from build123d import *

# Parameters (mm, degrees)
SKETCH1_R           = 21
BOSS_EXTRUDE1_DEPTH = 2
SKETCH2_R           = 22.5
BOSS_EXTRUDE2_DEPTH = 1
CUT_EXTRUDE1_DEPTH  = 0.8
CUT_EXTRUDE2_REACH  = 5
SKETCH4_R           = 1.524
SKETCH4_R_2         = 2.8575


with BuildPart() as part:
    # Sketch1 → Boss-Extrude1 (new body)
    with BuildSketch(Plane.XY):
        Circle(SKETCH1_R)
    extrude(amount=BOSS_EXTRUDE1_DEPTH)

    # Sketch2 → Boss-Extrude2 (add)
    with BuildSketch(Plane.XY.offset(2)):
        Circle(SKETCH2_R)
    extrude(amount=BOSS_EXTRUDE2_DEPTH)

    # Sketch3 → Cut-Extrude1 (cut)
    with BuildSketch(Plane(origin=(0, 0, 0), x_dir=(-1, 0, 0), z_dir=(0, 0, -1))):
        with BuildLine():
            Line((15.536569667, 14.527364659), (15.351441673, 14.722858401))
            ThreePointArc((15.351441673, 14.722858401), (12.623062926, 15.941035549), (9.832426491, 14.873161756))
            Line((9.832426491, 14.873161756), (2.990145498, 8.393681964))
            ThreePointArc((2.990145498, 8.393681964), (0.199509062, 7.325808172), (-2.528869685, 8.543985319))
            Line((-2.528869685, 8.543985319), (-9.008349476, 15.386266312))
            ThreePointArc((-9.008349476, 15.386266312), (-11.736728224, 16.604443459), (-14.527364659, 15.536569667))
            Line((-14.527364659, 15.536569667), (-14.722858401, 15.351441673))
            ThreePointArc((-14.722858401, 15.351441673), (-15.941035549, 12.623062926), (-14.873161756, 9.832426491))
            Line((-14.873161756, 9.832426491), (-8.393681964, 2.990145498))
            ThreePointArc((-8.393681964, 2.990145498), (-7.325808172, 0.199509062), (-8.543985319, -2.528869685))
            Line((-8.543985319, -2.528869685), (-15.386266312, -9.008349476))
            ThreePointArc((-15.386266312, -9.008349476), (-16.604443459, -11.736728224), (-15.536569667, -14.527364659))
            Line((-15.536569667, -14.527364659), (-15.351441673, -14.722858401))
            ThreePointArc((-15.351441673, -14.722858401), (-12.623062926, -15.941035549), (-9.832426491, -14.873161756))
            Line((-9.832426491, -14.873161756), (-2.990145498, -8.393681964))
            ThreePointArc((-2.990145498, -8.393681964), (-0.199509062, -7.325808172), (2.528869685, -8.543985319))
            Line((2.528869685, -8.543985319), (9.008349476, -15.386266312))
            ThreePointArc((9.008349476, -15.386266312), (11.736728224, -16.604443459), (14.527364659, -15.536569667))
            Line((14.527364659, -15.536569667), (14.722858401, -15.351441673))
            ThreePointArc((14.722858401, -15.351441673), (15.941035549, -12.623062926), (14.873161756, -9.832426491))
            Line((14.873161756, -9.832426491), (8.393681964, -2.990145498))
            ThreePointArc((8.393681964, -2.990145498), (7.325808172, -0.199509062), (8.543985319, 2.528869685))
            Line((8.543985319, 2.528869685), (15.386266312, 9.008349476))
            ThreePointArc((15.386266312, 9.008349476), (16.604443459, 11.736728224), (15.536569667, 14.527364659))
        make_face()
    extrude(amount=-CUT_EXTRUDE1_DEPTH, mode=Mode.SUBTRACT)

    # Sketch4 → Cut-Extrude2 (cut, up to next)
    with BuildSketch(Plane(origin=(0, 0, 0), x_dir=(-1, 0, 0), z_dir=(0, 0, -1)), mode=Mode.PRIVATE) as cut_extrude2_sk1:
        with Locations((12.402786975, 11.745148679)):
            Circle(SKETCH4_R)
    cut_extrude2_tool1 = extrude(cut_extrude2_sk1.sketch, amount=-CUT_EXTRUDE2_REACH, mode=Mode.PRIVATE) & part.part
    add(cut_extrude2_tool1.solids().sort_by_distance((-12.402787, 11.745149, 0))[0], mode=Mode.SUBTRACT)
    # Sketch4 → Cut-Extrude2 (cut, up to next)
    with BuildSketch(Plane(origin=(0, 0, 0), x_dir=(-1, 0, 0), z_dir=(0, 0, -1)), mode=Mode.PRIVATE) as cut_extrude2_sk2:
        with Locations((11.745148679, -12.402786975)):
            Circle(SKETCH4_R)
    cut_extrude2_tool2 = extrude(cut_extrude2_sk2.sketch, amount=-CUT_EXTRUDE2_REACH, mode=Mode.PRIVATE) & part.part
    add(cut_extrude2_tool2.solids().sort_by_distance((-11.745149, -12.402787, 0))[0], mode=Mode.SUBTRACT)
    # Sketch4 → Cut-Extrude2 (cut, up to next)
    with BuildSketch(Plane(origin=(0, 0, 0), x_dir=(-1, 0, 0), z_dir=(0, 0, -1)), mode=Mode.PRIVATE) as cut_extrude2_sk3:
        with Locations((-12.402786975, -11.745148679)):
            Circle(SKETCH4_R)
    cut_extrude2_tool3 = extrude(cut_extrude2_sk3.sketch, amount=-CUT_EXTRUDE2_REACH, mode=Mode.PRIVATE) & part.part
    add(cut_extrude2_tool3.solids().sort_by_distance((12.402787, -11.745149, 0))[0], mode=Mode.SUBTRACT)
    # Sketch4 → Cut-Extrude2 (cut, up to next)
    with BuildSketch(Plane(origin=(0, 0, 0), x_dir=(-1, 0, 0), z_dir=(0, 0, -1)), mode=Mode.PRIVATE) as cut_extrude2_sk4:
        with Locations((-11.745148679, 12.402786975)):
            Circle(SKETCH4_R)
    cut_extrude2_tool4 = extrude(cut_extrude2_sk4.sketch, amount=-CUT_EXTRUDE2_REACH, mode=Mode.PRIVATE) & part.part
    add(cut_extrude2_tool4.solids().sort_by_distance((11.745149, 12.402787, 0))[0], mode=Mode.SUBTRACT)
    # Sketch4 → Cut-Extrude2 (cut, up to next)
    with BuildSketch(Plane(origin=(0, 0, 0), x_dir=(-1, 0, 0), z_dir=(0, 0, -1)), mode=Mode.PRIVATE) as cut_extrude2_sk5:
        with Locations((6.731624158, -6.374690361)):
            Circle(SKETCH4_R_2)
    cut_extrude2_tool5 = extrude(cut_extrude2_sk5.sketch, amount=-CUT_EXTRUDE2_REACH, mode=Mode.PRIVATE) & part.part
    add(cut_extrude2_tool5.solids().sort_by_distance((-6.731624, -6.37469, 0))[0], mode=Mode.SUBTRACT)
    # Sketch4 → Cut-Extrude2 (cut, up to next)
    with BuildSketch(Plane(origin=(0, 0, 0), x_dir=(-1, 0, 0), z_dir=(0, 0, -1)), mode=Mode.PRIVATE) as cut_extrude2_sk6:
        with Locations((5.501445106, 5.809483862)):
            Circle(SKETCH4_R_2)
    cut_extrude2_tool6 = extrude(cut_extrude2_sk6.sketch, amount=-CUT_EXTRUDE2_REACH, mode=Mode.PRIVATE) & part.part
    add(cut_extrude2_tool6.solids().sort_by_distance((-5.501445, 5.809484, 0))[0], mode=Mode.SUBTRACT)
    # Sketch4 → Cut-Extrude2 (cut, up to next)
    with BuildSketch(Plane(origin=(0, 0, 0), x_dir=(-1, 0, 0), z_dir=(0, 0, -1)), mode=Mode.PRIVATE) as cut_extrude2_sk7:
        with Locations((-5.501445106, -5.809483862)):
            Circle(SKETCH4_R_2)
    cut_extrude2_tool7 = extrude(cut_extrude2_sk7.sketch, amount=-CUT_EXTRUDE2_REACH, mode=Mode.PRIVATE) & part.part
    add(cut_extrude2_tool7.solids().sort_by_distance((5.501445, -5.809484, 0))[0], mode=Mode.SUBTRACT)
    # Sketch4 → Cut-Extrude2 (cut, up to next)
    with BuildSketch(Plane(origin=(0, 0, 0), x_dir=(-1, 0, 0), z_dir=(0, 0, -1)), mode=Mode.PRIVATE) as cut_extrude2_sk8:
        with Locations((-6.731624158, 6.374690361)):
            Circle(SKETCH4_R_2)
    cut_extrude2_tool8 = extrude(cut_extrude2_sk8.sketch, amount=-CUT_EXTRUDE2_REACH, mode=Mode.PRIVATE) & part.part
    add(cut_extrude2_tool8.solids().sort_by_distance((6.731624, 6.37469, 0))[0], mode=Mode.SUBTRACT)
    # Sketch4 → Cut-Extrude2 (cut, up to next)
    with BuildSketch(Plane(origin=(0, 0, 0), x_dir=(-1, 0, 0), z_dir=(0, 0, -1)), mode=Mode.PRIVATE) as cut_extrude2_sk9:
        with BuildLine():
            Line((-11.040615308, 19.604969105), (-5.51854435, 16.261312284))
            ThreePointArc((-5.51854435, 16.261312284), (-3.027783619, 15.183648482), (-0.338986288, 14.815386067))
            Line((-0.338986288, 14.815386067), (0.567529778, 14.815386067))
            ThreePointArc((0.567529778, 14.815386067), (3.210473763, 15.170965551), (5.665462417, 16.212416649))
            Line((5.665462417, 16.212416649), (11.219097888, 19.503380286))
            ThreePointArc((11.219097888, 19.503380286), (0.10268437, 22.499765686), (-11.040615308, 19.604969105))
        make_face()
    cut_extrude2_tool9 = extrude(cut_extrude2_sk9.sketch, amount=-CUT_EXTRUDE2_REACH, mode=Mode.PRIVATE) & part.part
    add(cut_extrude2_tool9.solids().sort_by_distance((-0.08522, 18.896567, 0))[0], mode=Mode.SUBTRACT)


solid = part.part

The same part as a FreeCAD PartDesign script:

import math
import FreeCAD as App
import Part
import Sketcher
Q = App.Units.Quantity

doc = App.newDocument("Part")
body = doc.addObject("PartDesign::Body", "Body")

sketch1 = body.newObject("Sketcher::SketchObject", "Sketch")
sketch1.AttachmentSupport = (doc.getObject("XY_Plane"), [""])
sketch1.MapMode = "FlatFace"
sketch1.addGeometry(Part.Circle(App.Vector(0, 0, 0), App.Vector(0, 0, 1), 21), False)
sketch1.addConstraint([
    Sketcher.Constraint("Coincident", 0, 3, -1, 1),
    Sketcher.Constraint("Diameter", 0, 42.0),
])
pad1 = body.newObject("PartDesign::Pad", "Pad")
pad1.Profile = sketch1
pad1.Length = 2

sketch2 = body.newObject("Sketcher::SketchObject", "Sketch001")
sketch2.AttachmentSupport = (doc.getObject("XY_Plane"), [""])
sketch2.MapMode = "FlatFace"
sketch2.AttachmentOffset = App.Placement(App.Vector(0, 0, 2), App.Rotation())
sketch2.addGeometry(Part.Circle(App.Vector(0, 0, 0), App.Vector(0, 0, 1), 22), False)
sketch2.addConstraint([
    Sketcher.Constraint("Coincident", 0, 3, -1, 1),
    Sketcher.Constraint("Diameter", 0, 45.0),
])
pad2 = body.newObject("PartDesign::Pad", "Pad001")
pad2.Profile = sketch2
pad2.Length = 1

sketch3 = body.newObject("Sketcher::SketchObject", "Sketch002")
sketch3.AttachmentSupport = (doc.getObject("XY_Plane"), [""])
sketch3.MapMode = "FlatFace"
sketch3.addGeometry([
    Part.LineSegment(App.Vector(-15.54, 14.53, 0), App.Vector(-15.35, 14.72, 0)),
    Part.ArcOfCircle(Part.Circle(App.Vector(-12.52, 12.04, 0), App.Vector(0, 0, 1), 3.9), math.radians(47), math.radians(137)),
    Part.LineSegment(App.Vector(-9.83, 14.87, 0), App.Vector(-2.99, 8.39, 0)),
    Part.ArcOfCircle(Part.Circle(App.Vector(-0.31, 11.23, 0), App.Vector(0, 0, 1), 3.9), math.radians(-133), math.radians(-43)),
    Part.LineSegment(App.Vector(2.53, 8.54, 0), App.Vector(9.01, 15.39, 0)),
    Part.ArcOfCircle(Part.Circle(App.Vector(11.84, 12.7, 0), App.Vector(0, 0, 1), 3.9), math.radians(47), math.radians(137)),
    Part.LineSegment(App.Vector(14.53, 15.54, 0), App.Vector(14.72, 15.35, 0)),
    Part.ArcOfCircle(Part.Circle(App.Vector(12.04, 12.52, 0), App.Vector(0, 0, 1), 3.9), math.radians(-43), math.radians(47)),
    Part.LineSegment(App.Vector(14.87, 9.83, 0), App.Vector(8.39, 2.99, 0)),
    Part.ArcOfCircle(Part.Circle(App.Vector(11.23, 0.31, 0), App.Vector(0, 0, 1), 3.9), math.radians(137), math.radians(227)),
    Part.LineSegment(App.Vector(8.54, -2.53, 0), App.Vector(15.39, -9.01, 0)),
    Part.ArcOfCircle(Part.Circle(App.Vector(12.7, -11.84, 0), App.Vector(0, 0, 1), 3.9), math.radians(-43), math.radians(47)),
    Part.LineSegment(App.Vector(15.54, -14.53, 0), App.Vector(15.35, -14.72, 0)),
    Part.ArcOfCircle(Part.Circle(App.Vector(12.52, -12.04, 0), App.Vector(0, 0, 1), 3.9), math.radians(-133), math.radians(-43)),
    Part.LineSegment(App.Vector(9.83, -14.87, 0), App.Vector(2.99, -8.39, 0)),
    Part.ArcOfCircle(Part.Circle(App.Vector(0.31, -11.23, 0), App.Vector(0, 0, 1), 3.9), math.radians(47), math.radians(137)),
    Part.LineSegment(App.Vector(-2.53, -8.54, 0), App.Vector(-9.01, -15.39, 0)),
    Part.ArcOfCircle(Part.Circle(App.Vector(-11.84, -12.7, 0), App.Vector(0, 0, 1), 3.9), math.radians(-133), math.radians(-43)),
    Part.LineSegment(App.Vector(-14.53, -15.54, 0), App.Vector(-14.72, -15.35, 0)),
    Part.ArcOfCircle(Part.Circle(App.Vector(-12.04, -12.52, 0), App.Vector(0, 0, 1), 3.9), math.radians(137), math.radians(227)),
    Part.LineSegment(App.Vector(-14.87, -9.83, 0), App.Vector(-8.39, -2.99, 0)),
    Part.ArcOfCircle(Part.Circle(App.Vector(-11.23, -0.31, 0), App.Vector(0, 0, 1), 3.9), math.radians(-43), math.radians(47)),
    Part.LineSegment(App.Vector(-8.54, 2.53, 0), App.Vector(-15.39, 9.01, 0)),
    Part.ArcOfCircle(Part.Circle(App.Vector(-12.7, 11.84, 0), App.Vector(0, 0, 1), 3.9), math.radians(137), math.radians(227)),
], False)
sketch3.addConstraint([
    Sketcher.Constraint("Tangent", 0, 2, 1, 2),
    Sketcher.Constraint("Tangent", 1, 1, 2, 1),
    Sketcher.Constraint("Tangent", 2, 2, 3, 1),
    Sketcher.Constraint("Tangent", 3, 2, 4, 1),
    Sketcher.Constraint("Tangent", 4, 2, 5, 2),
    Sketcher.Constraint("Tangent", 5, 1, 6, 1),
    Sketcher.Constraint("Tangent", 6, 2, 7, 2),
    Sketcher.Constraint("Tangent", 7, 1, 8, 1),
    Sketcher.Constraint("Tangent", 8, 2, 9, 1),
    Sketcher.Constraint("Tangent", 9, 2, 10, 1),
    Sketcher.Constraint("Tangent", 10, 2, 11, 2),
    Sketcher.Constraint("Tangent", 11, 1, 12, 1),
    Sketcher.Constraint("Tangent", 12, 2, 13, 2),
    Sketcher.Constraint("Tangent", 13, 1, 14, 1),
    Sketcher.Constraint("Tangent", 14, 2, 15, 1),
    Sketcher.Constraint("Tangent", 15, 2, 16, 1),
    Sketcher.Constraint("Tangent", 16, 2, 17, 2),
    Sketcher.Constraint("Tangent", 17, 1, 18, 1),
    Sketcher.Constraint("Tangent", 18, 2, 19, 2),
    Sketcher.Constraint("Tangent", 19, 1, 20, 1),
    Sketcher.Constraint("Tangent", 20, 2, 21, 1),
    Sketcher.Constraint("Tangent", 21, 2, 22, 1),
    Sketcher.Constraint("Tangent", 22, 2, 23, 2),
    Sketcher.Constraint("Tangent", 23, 1, 0, 1),
    Sketcher.Constraint("Equal", 1, 3),
    Sketcher.Constraint("Equal", 3, 5),
    Sketcher.Constraint("Equal", 5, 7),
    Sketcher.Constraint("Equal", 7, 9),
    Sketcher.Constraint("Equal", 9, 11),
    Sketcher.Constraint("Equal", 11, 13),
    Sketcher.Constraint("Equal", 13, 15),
    Sketcher.Constraint("Equal", 15, 17),
    Sketcher.Constraint("Equal", 17, 19),
    Sketcher.Constraint("Equal", 19, 21),
    Sketcher.Constraint("Equal", 21, 23),
    Sketcher.Constraint("Symmetric", 1, 3, 13, 3, -1, 1),
    Sketcher.Constraint("Symmetric", 3, 3, 15, 3, -1, 1),
    Sketcher.Constraint("Symmetric", 5, 3, 17, 3, -1, 1),
    Sketcher.Constraint("Symmetric", 7, 3, 19, 3, -1, 1),
    Sketcher.Constraint("Symmetric", 9, 3, 21, 3, -1, 1),
    Sketcher.Constraint("Symmetric", 11, 3, 23, 3, -1, 1),
    Sketcher.Constraint("Perpendicular", 0, 2),
    Sketcher.Constraint("Perpendicular", 2, 4),
    Sketcher.Constraint("Perpendicular", 4, 6),
    Sketcher.Constraint("Perpendicular", 6, 8),
    Sketcher.Constraint("Perpendicular", 8, 10),
    Sketcher.Constraint("Equal", 2, 4),
    Sketcher.Constraint("Equal", 0, 6),
    Sketcher.Constraint("Equal", 4, 8),
    Sketcher.Constraint("Equal", 8, 10),
    Sketcher.Constraint("Angle", 2, Q("-43.440008 deg")),
    Sketcher.Constraint("Radius", 1, 3.90398),
    Sketcher.Constraint("Distance", 2, 9.4234),
    Sketcher.Constraint("DistanceX", 5, 3, 11, 3, 0.858902),
])
pocket1 = body.newObject("PartDesign::Pocket", "Pocket")
pocket1.Profile = sketch3
pocket1.Length = 0.8
pocket1.Reversed = True

sketch4 = body.newObject("Sketcher::SketchObject", "Sketch003")
sketch4.AttachmentSupport = (doc.getObject("XY_Plane"), [""])
sketch4.MapMode = "FlatFace"
sketch4.addGeometry(Part.Circle(App.Vector(-12.4, 11.7, 0), App.Vector(0, 0, 1), 1.5), False)
sketch4.addConstraint([
    Sketcher.Constraint("Diameter", 0, 3.048),
    Sketcher.Constraint("DistanceY", -1, 1, 0, 3, 11.745149),
    Sketcher.Constraint("DistanceX", 0, 3, -1, 1, 12.402787),
])
pocket2 = body.newObject("PartDesign::Pocket", "Pocket001")
pocket2.Profile = sketch4
pocket2.Length = 3
pocket2.Reversed = True

sketch5 = body.newObject("Sketcher::SketchObject", "Sketch004")
sketch5.AttachmentSupport = (doc.getObject("XY_Plane"), [""])
sketch5.MapMode = "FlatFace"
sketch5.addGeometry(Part.Circle(App.Vector(-11.7, -12.4, 0), App.Vector(0, 0, 1), 1.5), False)
sketch5.addConstraint([
    Sketcher.Constraint("Diameter", 0, 3.048),
    Sketcher.Constraint("DistanceX", 0, 3, -1, 1, 11.745149),
    Sketcher.Constraint("DistanceY", 0, 3, -1, 1, 12.402787),
])
pocket3 = body.newObject("PartDesign::Pocket", "Pocket002")
pocket3.Profile = sketch5
pocket3.Length = 3
pocket3.Reversed = True

sketch6 = body.newObject("Sketcher::SketchObject", "Sketch005")
sketch6.AttachmentSupport = (doc.getObject("XY_Plane"), [""])
sketch6.MapMode = "FlatFace"
sketch6.addGeometry(Part.Circle(App.Vector(12.4, -11.7, 0), App.Vector(0, 0, 1), 1.5), False)
sketch6.addConstraint([
    Sketcher.Constraint("Diameter", 0, 3.048),
    Sketcher.Constraint("DistanceY", 0, 3, -1, 1, 11.745149),
    Sketcher.Constraint("DistanceX", -1, 1, 0, 3, 12.402787),
])
pocket4 = body.newObject("PartDesign::Pocket", "Pocket003")
pocket4.Profile = sketch6
pocket4.Length = 3
pocket4.Reversed = True

sketch7 = body.newObject("Sketcher::SketchObject", "Sketch006")
sketch7.AttachmentSupport = (doc.getObject("XY_Plane"), [""])
sketch7.MapMode = "FlatFace"
sketch7.addGeometry(Part.Circle(App.Vector(11.7, 12.4, 0), App.Vector(0, 0, 1), 1.5), False)
sketch7.addConstraint([
    Sketcher.Constraint("Diameter", 0, 3.048),
    Sketcher.Constraint("DistanceX", -1, 1, 0, 3, 11.745149),
    Sketcher.Constraint("DistanceY", -1, 1, 0, 3, 12.402787),
])
pocket5 = body.newObject("PartDesign::Pocket", "Pocket004")
pocket5.Profile = sketch7
pocket5.Length = 3
pocket5.Reversed = True

sketch8 = body.newObject("Sketcher::SketchObject", "Sketch007")
sketch8.AttachmentSupport = (doc.getObject("XY_Plane"), [""])
sketch8.MapMode = "FlatFace"
sketch8.addGeometry(Part.Circle(App.Vector(-6.7, -6.4, 0), App.Vector(0, 0, 1), 2.9), False)
sketch8.addConstraint([
    Sketcher.Constraint("Diameter", 0, 5.715),
    Sketcher.Constraint("DistanceY", 0, 3, -1, 1, 6.37469),
    Sketcher.Constraint("DistanceX", 0, 3, -1, 1, 6.731624),
])
pocket6 = body.newObject("PartDesign::Pocket", "Pocket005")
pocket6.Profile = sketch8
pocket6.Length = 3
pocket6.Reversed = True

sketch9 = body.newObject("Sketcher::SketchObject", "Sketch008")
sketch9.AttachmentSupport = (doc.getObject("XY_Plane"), [""])
sketch9.MapMode = "FlatFace"
sketch9.addGeometry(Part.Circle(App.Vector(-5.5, 5.8, 0), App.Vector(0, 0, 1), 2.9), False)
sketch9.addConstraint([
    Sketcher.Constraint("Diameter", 0, 5.715),
    Sketcher.Constraint("DistanceX", 0, 3, -1, 1, 5.501445),
    Sketcher.Constraint("DistanceY", -1, 1, 0, 3, 5.809484),
])
pocket7 = body.newObject("PartDesign::Pocket", "Pocket006")
pocket7.Profile = sketch9
pocket7.Length = 3
pocket7.Reversed = True

sketch10 = body.newObject("Sketcher::SketchObject", "Sketch009")
sketch10.AttachmentSupport = (doc.getObject("XY_Plane"), [""])
sketch10.MapMode = "FlatFace"
sketch10.addGeometry(Part.Circle(App.Vector(5.5, -5.8, 0), App.Vector(0, 0, 1), 2.9), False)
sketch10.addConstraint([
    Sketcher.Constraint("Diameter", 0, 5.715),
    Sketcher.Constraint("DistanceX", -1, 1, 0, 3, 5.501445),
    Sketcher.Constraint("DistanceY", 0, 3, -1, 1, 5.809484),
])
pocket8 = body.newObject("PartDesign::Pocket", "Pocket007")
pocket8.Profile = sketch10
pocket8.Length = 3
pocket8.Reversed = True

sketch11 = body.newObject("Sketcher::SketchObject", "Sketch010")
sketch11.AttachmentSupport = (doc.getObject("XY_Plane"), [""])
sketch11.MapMode = "FlatFace"
sketch11.addGeometry(Part.Circle(App.Vector(6.7, 6.4, 0), App.Vector(0, 0, 1), 2.9), False)
sketch11.addConstraint([
    Sketcher.Constraint("Diameter", 0, 5.715),
    Sketcher.Constraint("DistanceY", -1, 1, 0, 3, 6.37469),
    Sketcher.Constraint("DistanceX", -1, 1, 0, 3, 6.731624),
])
pocket9 = body.newObject("PartDesign::Pocket", "Pocket008")
pocket9.Profile = sketch11
pocket9.Length = 3
pocket9.Reversed = True

sketch12 = body.newObject("Sketcher::SketchObject", "Sketch011")
sketch12.AttachmentSupport = (doc.getObject("XY_Plane"), [""])
sketch12.MapMode = "FlatFace"
sketch12.addGeometry([
    Part.LineSegment(App.Vector(11, 19.6, 0), App.Vector(5.5, 16.3, 0)),
    Part.ArcOfCircle(Part.Circle(App.Vector(0.3, 24.8, 0), App.Vector(0, 0, 1), 10), math.radians(-90), math.radians(-59)),
    Part.LineSegment(App.Vector(0.3, 14.8, 0), App.Vector(-0.6, 14.8, 0)),
    Part.ArcOfCircle(Part.Circle(App.Vector(-0.6, 24.8, 0), App.Vector(0, 0, 1), 10), math.radians(-121), math.radians(-90)),
    Part.LineSegment(App.Vector(-5.7, 16.2, 0), App.Vector(-11.2, 19.5, 0)),
    Part.ArcOfCircle(Part.Circle(App.Vector(0, 0, 0), App.Vector(0, 0, 1), 22.5), math.radians(61), math.radians(120)),
], False)
sketch12.addConstraint([
    Sketcher.Constraint("Tangent", 0, 2, 1, 2),
    Sketcher.Constraint("Tangent", 1, 1, 2, 1),
    Sketcher.Constraint("Tangent", 2, 2, 3, 2),
    Sketcher.Constraint("Tangent", 3, 1, 4, 1),
    Sketcher.Constraint("Coincident", 4, 2, 5, 2),
    Sketcher.Constraint("Coincident", 5, 1, 0, 1),
    Sketcher.Constraint("Horizontal", 2),
    Sketcher.Constraint("Coincident", 5, 3, -1, 1),
    Sketcher.Constraint("Equal", 1, 3),
    Sketcher.Constraint("Equal", 0, 4),
    Sketcher.Constraint("Radius", 1, 10.0),
    Sketcher.Constraint("Radius", 5, 22.5),
    Sketcher.Constraint("DistanceX", 2, 2, 2, 1, 0.906516),
    Sketcher.Constraint("DistanceX", 3, 3, -1, 1, 0.56753),
    Sketcher.Constraint("DistanceY", -1, 1, 4, 2, 19.50338),
    Sketcher.Constraint("DistanceX", 1, 3, 0, 2, 5.179558),
])
pocket10 = body.newObject("PartDesign::Pocket", "Pocket009")
pocket10.Profile = sketch12
pocket10.Type = "UpToFirst"
pocket10.Reversed = True

doc.recompute()
